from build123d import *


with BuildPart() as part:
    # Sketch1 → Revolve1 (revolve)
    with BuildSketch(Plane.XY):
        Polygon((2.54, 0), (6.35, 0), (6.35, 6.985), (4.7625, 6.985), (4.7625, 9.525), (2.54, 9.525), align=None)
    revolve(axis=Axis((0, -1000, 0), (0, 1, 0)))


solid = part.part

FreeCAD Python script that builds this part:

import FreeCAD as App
import Part
import Sketcher
Q = App.Units.Quantity


def add_polygon(sketch, points):
    """Adds a closed chain of lines whose ends are joined by coincident constraints."""
    first, n = sketch.GeometryCount, len(points)
    for a, b in zip(points, points[1:] + points[:1]):
        sketch.addGeometry(Part.LineSegment(App.Vector(*a, 0), App.Vector(*b, 0)), False)
    for i in range(n):
        sketch.addConstraint(Sketcher.Constraint("Coincident", first + i, 2, first + (i + 1) % n, 1))

doc = App.newDocument("Part")
body = doc.addObject("PartDesign::Body", "Body")

# Sketch on XY plane
sketch1 = body.newObject("Sketcher::SketchObject", "Sketch")
sketch1.AttachmentSupport = (doc.getObject("XY_Plane"), [""])
sketch1.MapMode = "FlatFace"
add_polygon(sketch1, [(2.5, 0), (6.3, 0), (6.3, 7), (4.8, 7), (4.8, 9.5), (2.5, 9.5)])  # lines 0-5
sketch1.addConstraint([
    Sketcher.Constraint("Horizontal", 0),
    Sketcher.Constraint("Vertical", 1),
    Sketcher.Constraint("Horizontal", 2),
    Sketcher.Constraint("Vertical", 3),
    Sketcher.Constraint("Horizontal", 4),
    Sketcher.Constraint("Vertical", 5),
    Sketcher.Constraint("PointOnObject", 0, 2, -1),
    Sketcher.Constraint("DistanceY", 3, 1, 3, 2, Q("0.1 in")),
    Sketcher.Constraint("DistanceX", 0, 1, 0, 2, Q("0.15 in")),
    Sketcher.Constraint("DistanceX", -1, 1, 4, 2, Q("0.1 in")),
    Sketcher.Constraint("DistanceX", 2, 2, 2, 1, Q("0.0625 in")),
    Sketcher.Constraint("DistanceY", 1, 1, 1, 2, Q("0.275 in")),
])
revolution = body.newObject("PartDesign::Revolution", "Revolution")
revolution.Profile = sketch1
revolution.ReferenceAxis = (sketch1, ["V_Axis"])
revolution.Angle = 360

doc.recompute()
